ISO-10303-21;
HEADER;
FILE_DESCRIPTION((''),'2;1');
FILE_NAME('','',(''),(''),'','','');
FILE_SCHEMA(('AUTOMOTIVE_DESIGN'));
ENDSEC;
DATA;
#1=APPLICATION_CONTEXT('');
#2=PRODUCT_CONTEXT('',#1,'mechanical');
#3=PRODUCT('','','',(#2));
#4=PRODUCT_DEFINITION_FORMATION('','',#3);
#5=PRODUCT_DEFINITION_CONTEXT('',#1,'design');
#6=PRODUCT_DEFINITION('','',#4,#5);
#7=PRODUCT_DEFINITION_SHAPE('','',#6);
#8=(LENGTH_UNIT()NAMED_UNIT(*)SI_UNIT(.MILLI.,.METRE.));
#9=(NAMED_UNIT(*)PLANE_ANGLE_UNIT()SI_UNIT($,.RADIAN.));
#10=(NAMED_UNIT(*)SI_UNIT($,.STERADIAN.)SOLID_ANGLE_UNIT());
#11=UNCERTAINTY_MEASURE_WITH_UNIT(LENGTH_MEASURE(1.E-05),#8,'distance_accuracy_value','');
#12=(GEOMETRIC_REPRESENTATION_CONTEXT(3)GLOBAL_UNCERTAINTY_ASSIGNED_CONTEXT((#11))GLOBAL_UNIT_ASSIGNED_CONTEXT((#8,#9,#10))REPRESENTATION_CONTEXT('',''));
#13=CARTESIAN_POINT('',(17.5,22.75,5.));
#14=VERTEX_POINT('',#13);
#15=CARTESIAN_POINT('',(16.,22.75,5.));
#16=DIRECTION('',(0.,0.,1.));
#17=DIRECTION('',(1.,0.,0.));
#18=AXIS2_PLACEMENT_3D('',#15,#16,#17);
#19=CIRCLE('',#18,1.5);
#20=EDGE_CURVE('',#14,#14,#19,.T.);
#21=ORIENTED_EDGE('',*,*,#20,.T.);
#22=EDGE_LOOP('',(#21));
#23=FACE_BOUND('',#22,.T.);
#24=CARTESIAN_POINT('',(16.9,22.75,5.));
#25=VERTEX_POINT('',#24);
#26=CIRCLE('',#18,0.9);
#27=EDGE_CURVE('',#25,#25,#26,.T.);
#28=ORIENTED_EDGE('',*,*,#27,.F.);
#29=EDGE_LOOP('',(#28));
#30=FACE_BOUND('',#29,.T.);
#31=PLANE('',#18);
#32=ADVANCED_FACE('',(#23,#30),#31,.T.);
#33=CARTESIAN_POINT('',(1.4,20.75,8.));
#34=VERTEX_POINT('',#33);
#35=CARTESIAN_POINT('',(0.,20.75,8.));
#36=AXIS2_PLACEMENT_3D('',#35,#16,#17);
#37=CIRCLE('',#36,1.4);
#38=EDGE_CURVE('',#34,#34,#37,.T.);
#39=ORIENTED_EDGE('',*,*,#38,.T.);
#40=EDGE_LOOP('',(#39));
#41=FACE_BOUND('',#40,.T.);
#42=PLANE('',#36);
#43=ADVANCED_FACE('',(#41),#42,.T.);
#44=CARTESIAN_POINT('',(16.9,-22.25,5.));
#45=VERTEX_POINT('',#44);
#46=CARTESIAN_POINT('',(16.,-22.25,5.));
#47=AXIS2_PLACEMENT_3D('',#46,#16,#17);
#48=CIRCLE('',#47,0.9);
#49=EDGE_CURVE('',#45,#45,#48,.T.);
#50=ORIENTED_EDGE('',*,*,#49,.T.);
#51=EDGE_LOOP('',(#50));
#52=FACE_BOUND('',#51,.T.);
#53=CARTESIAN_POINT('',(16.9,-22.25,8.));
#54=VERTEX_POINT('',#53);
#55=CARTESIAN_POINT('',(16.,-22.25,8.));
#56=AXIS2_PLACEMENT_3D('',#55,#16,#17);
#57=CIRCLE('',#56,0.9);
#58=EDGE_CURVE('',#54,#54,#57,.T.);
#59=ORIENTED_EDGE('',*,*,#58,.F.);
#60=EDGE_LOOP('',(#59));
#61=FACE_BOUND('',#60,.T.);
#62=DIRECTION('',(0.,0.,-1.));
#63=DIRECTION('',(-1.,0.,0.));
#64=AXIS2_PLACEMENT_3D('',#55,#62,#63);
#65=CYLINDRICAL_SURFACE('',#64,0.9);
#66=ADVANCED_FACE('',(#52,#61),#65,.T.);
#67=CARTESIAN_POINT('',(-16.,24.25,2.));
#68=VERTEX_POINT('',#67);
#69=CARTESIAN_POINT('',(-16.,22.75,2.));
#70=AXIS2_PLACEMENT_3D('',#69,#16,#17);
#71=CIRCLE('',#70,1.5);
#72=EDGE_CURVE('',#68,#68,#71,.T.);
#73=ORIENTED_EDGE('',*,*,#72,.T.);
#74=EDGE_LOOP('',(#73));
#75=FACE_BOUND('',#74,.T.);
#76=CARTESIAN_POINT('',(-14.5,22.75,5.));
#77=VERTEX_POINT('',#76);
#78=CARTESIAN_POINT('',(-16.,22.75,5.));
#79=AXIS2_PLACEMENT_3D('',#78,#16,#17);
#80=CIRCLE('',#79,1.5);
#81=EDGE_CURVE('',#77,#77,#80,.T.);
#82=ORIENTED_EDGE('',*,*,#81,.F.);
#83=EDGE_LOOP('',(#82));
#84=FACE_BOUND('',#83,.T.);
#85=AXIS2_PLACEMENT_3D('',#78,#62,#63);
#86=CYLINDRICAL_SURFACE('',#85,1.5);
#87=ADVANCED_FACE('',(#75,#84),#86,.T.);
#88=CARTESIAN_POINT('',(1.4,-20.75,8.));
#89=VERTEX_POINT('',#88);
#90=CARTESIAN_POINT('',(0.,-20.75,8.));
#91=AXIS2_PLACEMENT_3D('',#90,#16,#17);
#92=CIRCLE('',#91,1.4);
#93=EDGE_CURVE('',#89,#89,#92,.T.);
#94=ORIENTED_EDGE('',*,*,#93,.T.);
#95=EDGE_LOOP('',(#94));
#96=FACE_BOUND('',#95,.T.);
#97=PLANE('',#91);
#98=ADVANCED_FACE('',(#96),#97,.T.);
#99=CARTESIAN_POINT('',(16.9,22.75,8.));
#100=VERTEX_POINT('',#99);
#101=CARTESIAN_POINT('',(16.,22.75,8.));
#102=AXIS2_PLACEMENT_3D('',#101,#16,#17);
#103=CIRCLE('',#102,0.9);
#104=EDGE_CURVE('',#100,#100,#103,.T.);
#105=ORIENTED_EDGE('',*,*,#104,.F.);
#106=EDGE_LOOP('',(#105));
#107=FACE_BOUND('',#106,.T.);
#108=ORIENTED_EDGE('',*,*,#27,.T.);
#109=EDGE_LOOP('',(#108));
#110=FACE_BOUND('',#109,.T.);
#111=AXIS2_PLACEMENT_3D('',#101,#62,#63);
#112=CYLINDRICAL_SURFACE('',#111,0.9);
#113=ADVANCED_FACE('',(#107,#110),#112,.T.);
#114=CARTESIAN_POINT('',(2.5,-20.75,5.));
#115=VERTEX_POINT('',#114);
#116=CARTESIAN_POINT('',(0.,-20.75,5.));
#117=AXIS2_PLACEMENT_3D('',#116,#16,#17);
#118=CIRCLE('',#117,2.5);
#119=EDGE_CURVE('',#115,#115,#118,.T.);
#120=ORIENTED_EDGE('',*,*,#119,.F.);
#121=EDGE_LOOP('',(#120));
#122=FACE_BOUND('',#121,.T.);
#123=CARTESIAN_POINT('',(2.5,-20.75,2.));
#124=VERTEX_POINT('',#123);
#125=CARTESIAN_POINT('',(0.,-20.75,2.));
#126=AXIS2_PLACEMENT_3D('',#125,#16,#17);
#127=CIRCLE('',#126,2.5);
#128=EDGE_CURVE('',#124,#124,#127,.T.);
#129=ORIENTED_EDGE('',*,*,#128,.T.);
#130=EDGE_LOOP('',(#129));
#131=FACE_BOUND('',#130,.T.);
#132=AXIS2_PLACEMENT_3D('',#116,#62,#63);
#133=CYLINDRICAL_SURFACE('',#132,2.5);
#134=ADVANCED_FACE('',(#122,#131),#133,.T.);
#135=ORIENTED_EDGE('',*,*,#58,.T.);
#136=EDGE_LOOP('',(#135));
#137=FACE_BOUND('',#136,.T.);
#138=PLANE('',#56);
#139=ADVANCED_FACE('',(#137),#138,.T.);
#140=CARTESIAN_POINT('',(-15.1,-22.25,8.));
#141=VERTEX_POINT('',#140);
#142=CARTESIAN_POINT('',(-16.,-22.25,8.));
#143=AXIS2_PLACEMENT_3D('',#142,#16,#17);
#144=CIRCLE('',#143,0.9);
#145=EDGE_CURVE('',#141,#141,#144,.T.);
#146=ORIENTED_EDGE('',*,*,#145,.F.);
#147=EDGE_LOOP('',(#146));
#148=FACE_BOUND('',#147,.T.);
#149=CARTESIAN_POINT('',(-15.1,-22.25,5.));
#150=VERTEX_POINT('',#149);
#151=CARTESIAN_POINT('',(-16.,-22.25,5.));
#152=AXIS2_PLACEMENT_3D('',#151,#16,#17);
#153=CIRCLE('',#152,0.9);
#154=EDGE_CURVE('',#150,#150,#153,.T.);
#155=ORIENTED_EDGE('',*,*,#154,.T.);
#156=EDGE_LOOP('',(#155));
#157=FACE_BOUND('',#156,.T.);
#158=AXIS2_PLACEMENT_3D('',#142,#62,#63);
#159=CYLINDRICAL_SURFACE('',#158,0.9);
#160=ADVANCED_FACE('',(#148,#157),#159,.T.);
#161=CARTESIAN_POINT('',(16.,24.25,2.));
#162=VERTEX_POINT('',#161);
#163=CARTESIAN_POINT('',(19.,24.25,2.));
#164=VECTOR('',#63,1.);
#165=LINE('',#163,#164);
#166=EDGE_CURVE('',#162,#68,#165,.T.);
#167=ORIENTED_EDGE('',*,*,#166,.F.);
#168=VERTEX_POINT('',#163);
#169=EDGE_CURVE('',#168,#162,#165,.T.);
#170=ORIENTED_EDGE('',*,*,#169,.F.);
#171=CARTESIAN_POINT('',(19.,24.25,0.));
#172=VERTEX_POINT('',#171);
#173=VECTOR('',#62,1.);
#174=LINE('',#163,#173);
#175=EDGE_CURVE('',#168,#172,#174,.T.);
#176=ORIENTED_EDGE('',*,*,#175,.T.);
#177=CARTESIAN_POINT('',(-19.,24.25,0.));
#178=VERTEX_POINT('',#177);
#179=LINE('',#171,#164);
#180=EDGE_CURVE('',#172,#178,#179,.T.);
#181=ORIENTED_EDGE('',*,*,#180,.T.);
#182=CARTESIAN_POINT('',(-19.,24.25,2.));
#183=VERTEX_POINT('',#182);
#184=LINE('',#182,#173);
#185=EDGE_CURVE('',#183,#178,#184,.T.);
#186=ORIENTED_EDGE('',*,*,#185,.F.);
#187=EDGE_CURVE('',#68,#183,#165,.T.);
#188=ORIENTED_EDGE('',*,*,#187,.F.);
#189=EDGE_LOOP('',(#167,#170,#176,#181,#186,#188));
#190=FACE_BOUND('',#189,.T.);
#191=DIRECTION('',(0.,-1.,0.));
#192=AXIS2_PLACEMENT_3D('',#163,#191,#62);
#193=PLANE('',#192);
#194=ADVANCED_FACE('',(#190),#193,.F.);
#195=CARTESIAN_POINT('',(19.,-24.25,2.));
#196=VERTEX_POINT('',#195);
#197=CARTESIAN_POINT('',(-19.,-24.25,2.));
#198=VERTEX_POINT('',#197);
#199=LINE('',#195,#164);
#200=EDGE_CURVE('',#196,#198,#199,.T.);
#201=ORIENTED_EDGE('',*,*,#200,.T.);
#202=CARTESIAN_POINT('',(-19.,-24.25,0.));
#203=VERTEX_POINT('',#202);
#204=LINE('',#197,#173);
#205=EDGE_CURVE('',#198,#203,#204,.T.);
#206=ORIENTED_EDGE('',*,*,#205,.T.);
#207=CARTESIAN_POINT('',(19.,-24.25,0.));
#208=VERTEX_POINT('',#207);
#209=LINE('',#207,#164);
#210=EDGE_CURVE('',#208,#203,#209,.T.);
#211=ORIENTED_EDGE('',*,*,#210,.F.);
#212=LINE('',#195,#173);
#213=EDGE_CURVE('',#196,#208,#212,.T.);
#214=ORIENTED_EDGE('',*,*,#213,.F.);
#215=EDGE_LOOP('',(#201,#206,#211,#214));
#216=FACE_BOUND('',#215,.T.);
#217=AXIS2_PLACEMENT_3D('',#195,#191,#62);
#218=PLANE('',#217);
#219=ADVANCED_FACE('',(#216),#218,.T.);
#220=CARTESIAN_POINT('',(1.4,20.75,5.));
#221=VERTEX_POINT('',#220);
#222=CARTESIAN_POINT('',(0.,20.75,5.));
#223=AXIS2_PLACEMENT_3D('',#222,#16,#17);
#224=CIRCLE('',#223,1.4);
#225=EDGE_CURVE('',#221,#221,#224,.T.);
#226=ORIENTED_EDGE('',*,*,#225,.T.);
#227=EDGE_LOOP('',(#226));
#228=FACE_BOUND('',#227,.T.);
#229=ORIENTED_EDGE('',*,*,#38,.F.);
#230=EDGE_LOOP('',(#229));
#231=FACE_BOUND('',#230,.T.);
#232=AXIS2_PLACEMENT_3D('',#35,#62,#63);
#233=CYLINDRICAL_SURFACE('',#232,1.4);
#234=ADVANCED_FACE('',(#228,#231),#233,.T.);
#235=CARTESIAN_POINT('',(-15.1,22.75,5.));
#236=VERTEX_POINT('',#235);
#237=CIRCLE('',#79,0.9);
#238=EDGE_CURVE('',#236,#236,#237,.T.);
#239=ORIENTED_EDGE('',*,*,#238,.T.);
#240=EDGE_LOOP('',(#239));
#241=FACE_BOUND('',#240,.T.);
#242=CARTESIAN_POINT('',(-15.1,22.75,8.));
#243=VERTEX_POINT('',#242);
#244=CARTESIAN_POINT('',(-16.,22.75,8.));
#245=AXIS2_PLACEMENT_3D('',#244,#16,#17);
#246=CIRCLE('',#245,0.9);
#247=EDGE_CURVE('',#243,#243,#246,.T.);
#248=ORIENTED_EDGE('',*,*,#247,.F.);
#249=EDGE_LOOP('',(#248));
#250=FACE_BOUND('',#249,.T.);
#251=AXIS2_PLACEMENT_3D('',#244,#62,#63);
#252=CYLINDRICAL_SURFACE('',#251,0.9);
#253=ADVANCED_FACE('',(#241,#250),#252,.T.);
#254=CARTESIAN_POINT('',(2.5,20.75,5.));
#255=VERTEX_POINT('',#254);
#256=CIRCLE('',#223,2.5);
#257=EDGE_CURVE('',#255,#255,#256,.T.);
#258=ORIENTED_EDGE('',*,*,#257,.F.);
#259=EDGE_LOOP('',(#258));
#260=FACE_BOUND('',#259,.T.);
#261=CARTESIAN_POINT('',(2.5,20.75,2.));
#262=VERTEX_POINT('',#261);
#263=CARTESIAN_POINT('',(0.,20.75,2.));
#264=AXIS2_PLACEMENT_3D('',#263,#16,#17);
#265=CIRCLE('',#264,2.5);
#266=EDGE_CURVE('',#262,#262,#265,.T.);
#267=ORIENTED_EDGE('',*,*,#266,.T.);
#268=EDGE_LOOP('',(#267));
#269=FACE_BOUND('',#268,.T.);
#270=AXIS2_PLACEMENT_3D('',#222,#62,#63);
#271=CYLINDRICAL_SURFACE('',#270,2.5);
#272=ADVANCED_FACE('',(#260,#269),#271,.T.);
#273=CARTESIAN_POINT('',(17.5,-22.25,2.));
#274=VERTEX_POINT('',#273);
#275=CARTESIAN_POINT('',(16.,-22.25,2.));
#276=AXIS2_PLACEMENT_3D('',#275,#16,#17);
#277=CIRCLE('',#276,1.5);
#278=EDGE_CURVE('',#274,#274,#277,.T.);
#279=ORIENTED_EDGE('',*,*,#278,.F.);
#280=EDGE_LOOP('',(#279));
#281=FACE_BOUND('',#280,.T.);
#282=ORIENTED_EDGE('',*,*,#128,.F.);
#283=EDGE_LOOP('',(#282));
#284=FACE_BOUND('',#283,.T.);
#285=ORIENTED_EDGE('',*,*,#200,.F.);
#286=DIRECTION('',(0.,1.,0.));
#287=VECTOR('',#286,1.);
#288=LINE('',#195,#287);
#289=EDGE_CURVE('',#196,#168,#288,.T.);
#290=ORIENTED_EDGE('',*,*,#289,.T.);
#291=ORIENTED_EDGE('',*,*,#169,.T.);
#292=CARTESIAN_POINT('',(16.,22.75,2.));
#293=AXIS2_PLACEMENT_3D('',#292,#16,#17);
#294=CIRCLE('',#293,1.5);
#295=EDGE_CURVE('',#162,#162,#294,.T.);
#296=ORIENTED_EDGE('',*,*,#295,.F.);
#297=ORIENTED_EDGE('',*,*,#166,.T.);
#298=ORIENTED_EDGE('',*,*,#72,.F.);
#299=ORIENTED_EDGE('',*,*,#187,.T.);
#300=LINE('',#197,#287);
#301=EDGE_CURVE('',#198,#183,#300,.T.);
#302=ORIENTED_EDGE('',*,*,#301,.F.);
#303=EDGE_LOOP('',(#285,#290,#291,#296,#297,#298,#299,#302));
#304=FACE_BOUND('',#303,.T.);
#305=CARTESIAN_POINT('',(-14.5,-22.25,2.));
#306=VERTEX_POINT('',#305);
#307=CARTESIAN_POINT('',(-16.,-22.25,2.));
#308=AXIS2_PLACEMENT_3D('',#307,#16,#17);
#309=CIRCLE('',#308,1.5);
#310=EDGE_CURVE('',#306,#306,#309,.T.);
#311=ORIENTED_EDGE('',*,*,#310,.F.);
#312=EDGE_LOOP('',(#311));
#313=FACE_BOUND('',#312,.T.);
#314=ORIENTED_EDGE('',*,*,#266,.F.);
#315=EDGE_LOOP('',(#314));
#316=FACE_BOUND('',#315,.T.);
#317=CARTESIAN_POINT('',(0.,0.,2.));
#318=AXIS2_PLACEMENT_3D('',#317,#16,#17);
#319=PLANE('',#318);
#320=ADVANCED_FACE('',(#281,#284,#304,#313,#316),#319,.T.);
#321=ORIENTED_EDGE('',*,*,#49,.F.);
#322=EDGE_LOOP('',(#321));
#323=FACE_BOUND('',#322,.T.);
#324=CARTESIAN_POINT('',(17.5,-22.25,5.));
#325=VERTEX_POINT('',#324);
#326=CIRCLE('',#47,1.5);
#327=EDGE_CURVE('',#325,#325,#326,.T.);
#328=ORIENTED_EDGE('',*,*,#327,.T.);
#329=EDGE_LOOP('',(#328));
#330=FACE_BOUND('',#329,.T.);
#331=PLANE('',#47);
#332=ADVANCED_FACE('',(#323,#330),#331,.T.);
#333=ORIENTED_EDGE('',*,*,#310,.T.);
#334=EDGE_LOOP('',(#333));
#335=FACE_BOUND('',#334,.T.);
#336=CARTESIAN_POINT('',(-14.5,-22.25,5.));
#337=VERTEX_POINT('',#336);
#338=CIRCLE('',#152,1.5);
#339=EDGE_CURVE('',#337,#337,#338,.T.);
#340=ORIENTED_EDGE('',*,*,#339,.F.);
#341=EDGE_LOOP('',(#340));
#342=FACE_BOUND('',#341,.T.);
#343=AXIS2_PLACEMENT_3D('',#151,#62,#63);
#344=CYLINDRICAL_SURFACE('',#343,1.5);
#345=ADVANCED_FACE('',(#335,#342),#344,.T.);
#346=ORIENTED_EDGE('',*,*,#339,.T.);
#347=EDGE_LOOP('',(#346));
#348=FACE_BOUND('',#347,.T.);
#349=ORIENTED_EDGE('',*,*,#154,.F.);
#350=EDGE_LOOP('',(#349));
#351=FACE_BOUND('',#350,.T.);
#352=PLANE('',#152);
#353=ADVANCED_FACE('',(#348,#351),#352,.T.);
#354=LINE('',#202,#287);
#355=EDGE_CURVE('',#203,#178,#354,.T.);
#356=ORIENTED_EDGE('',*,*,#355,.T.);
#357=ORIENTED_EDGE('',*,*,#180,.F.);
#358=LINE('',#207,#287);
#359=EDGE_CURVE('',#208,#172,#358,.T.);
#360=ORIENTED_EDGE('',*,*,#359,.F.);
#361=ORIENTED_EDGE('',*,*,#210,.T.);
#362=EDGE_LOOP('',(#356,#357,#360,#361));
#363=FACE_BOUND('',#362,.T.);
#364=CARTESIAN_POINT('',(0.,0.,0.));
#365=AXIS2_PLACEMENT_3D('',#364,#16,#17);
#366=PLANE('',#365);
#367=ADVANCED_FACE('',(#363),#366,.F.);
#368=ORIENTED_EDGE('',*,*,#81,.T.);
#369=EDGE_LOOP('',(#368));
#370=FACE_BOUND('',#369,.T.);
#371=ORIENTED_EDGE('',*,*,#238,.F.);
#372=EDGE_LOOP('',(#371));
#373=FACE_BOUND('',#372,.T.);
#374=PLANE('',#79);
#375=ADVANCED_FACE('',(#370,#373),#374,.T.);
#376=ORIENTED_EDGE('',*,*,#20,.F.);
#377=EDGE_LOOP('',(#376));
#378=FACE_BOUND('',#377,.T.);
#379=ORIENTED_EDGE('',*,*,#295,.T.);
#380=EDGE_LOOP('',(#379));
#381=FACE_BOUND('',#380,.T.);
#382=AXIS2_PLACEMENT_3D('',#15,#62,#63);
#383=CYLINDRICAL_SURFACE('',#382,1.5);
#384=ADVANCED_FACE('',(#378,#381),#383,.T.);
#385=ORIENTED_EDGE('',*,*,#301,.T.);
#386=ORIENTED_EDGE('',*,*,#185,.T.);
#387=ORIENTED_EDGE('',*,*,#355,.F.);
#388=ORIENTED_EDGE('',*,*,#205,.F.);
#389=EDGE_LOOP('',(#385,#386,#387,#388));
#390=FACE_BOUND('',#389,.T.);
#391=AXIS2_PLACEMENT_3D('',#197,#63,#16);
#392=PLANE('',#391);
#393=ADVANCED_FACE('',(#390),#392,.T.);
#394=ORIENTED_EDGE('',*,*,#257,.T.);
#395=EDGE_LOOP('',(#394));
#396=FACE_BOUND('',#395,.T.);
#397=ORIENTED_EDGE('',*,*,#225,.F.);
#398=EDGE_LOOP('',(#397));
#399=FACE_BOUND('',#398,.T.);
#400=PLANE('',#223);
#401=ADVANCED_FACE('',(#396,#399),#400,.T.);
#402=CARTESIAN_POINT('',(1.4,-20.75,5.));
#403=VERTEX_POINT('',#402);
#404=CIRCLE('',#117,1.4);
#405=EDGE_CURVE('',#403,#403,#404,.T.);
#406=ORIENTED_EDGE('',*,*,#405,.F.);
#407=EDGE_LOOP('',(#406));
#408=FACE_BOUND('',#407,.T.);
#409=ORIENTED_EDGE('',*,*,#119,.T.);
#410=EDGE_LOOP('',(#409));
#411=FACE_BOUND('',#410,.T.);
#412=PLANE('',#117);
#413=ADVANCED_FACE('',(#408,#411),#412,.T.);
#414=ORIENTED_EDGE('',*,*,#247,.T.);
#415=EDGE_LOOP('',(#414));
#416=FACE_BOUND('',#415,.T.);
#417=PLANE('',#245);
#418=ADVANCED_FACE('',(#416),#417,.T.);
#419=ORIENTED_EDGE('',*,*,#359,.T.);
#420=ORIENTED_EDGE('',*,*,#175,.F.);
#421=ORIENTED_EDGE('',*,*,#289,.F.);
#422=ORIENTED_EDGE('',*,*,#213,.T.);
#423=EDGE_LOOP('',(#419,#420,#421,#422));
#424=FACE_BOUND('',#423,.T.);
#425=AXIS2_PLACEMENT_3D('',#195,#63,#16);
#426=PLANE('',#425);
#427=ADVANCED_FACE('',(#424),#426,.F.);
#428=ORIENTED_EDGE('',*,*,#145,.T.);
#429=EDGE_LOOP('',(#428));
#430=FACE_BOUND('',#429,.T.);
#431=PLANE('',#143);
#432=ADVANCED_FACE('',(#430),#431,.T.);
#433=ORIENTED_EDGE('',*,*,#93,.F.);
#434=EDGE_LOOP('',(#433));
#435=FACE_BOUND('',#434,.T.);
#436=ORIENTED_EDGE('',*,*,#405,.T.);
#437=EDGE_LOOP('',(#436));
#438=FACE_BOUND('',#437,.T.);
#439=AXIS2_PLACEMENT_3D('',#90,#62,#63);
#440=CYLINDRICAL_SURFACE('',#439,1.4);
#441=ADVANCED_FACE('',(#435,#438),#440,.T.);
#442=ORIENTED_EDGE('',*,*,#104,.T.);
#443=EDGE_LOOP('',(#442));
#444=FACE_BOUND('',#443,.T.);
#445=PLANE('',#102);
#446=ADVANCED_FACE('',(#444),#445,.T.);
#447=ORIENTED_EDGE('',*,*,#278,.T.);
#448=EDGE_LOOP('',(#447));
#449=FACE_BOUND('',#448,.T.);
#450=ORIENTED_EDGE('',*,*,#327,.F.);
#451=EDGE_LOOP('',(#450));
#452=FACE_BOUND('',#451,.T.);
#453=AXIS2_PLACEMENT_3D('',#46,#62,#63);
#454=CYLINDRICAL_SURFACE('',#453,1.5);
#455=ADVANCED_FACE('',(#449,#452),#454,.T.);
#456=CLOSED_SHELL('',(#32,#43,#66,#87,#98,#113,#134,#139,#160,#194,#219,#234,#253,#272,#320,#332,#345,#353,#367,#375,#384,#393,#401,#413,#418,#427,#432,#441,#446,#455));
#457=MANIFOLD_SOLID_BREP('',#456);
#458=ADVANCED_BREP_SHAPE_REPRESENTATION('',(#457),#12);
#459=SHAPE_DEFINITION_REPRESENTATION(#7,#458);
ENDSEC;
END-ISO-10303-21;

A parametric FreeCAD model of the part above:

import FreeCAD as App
import Part
import Sketcher
from FreeCAD import Vector
Q = App.Units.Quantity


def add_polygon(sketch, points):
    """Adds a closed chain of lines whose ends are joined by coincident constraints."""
    first, n = sketch.GeometryCount, len(points)
    for a, b in zip(points, points[1:] + points[:1]):
        sketch.addGeometry(Part.LineSegment(App.Vector(*a, 0), App.Vector(*b, 0)), False)
    for i in range(n):
        sketch.addConstraint(Sketcher.Constraint("Coincident", first + i, 2, first + (i + 1) % n, 1))

doc = App.newDocument("Part")
body = doc.addObject("PartDesign::Body", "Body")

# Sketch on XY plane
sketch1 = body.newObject("Sketcher::SketchObject", "Sketch")
sketch1.AttachmentSupport = (doc.getObject("XY_Plane"), [""])
sketch1.MapMode = "FlatFace"
add_polygon(sketch1, [(-19, -24), (19, -24), (19, 24), (-19, 24)])  # lines 0-3
sketch1.addConstraint([
    Sketcher.Constraint("Horizontal", 0),
    Sketcher.Constraint("Vertical", 1),
    Sketcher.Constraint("Horizontal", 2),
    Sketcher.Constraint("Vertical", 3),
    Sketcher.Constraint("Symmetric", 0, 2, 2, 2, -1, 1),
    Sketcher.Constraint("DistanceX", 0, 1, 0, 2, Q("38 mm")),
    Sketcher.Constraint("DistanceY", 1, 1, 1, 2, Q("48.5 mm")),
])
pad1 = body.newObject("PartDesign::Pad", "Pad")
pad1.Profile = sketch1
pad1.Length = 2

# Sketch on XY plane
sketch2 = body.newObject("Sketcher::SketchObject", "Sketch001")
sketch2.AttachmentSupport = (doc.getObject("XY_Plane"), [""])
sketch2.MapMode = "FlatFace"
sketch2.AttachmentOffset = App.Placement(Vector(0, 0, 2), App.Rotation())
sketch2.addGeometry([
    Part.Circle(Vector(-16, -22.2, 0), Vector(0, 0, 1), 1.5),  # 0
    Part.Circle(Vector(16, -22.2, 0), Vector(0, 0, 1), 1.5),  # 1
    Part.Circle(Vector(16, 22.8, 0), Vector(0, 0, 1), 1.5),  # 2
    Part.Circle(Vector(-16, 22.8, 0), Vector(0, 0, 1), 1.5),  # 3
    Part.Circle(Vector(0, 20.8, 0), Vector(0, 0, 1), 2.5),  # 4
    Part.Circle(Vector(0, -20.8, 0), Vector(0, 0, 1), 2.5),  # 5
], False)
sketch2.addConstraint([
    Sketcher.Constraint("Equal", 0, 1),
    Sketcher.Constraint("Equal", 1, 2),
    Sketcher.Constraint("Equal", 2, 3),
    Sketcher.Constraint("Equal", 4, 5),
    Sketcher.Constraint("Symmetric", 4, 3, 5, 3, -1, 1),
    Sketcher.Constraint("Symmetric", 0, 3, 1, 3, -2),
    Sketcher.Constraint("Symmetric", 2, 3, 3, 3, -2),
    Sketcher.Constraint("PointOnObject", 4, 3, -2),
    Sketcher.Constraint("Vertical", 1, 3, 2, 3),
    Sketcher.Constraint("Diameter", 0, Q("3 mm")),
    Sketcher.Constraint("Diameter", 4, Q("5 mm")),
    Sketcher.Constraint("DistanceX", 0, 3, -1, 1, Q("16 mm")),
    Sketcher.Constraint("DistanceY", 1, 3, 2, 3, Q("45 mm")),
    Sketcher.Constraint("DistanceY", 4, 3, 2, 3, Q("2 mm")),
    Sketcher.Constraint("DistanceY", 0, 3, 5, 3, Q("1.5 mm")),
])
pad2 = body.newObject("PartDesign::Pad", "Pad001")
pad2.Profile = sketch2
pad2.Length = 3

# Sketch on XY plane
sketch3 = body.newObject("Sketcher::SketchObject", "Sketch002")
sketch3.AttachmentSupport = (doc.getObject("XY_Plane"), [""])
sketch3.MapMode = "FlatFace"
sketch3.AttachmentOffset = App.Placement(Vector(0, 0, 5), App.Rotation())
sketch3.addGeometry([
    Part.Circle(Vector(0, 20.8, 0), Vector(0, 0, 1), 1.4),  # 0
    Part.Circle(Vector(16, 22.8, 0), Vector(0, 0, 1), 0.9),  # 1
    Part.Circle(Vector(-16, 22.8, 0), Vector(0, 0, 1), 0.9),  # 2
    Part.Circle(Vector(0, -20.8, 0), Vector(0, 0, 1), 1.4),  # 3
    Part.Circle(Vector(-16, -22.2, 0), Vector(0, 0, 1), 0.9),  # 4
    Part.Circle(Vector(16, -22.2, 0), Vector(0, 0, 1), 0.9),  # 5
], False)
sketch3.addConstraint([
    Sketcher.Constraint("Equal", 1, 2),
    Sketcher.Constraint("Equal", 0, 3),
    Sketcher.Constraint("Equal", 2, 4),
    Sketcher.Constraint("Equal", 4, 5),
    Sketcher.Constraint("Symmetric", 0, 3, 3, 3, -1, 1),
    Sketcher.Constraint("Symmetric", 1, 3, 2, 3, -2),
    Sketcher.Constraint("Symmetric", 4, 3, 5, 3, -2),
    Sketcher.Constraint("PointOnObject", 0, 3, -2),
    Sketcher.Constraint("Vertical", 2, 3, 4, 3),
    Sketcher.Constraint("Diameter", 0, Q("2.8 mm")),
    Sketcher.Constraint("Diameter", 1, Q("1.8 mm")),
    Sketcher.Constraint("DistanceX", -1, 1, 1, 3, Q("16 mm")),
    Sketcher.Constraint("DistanceY", 0, 3, 1, 3, Q("2 mm")),
    Sketcher.Constraint("DistanceY", 4, 3, 2, 3, Q("45 mm")),
    Sketcher.Constraint("DistanceY", 3, 3, 0, 3, Q("41.5 mm")),
])
pad3 = body.newObject("PartDesign::Pad", "Pad002")
pad3.Profile = sketch3
pad3.Length = 3

doc.recompute()
